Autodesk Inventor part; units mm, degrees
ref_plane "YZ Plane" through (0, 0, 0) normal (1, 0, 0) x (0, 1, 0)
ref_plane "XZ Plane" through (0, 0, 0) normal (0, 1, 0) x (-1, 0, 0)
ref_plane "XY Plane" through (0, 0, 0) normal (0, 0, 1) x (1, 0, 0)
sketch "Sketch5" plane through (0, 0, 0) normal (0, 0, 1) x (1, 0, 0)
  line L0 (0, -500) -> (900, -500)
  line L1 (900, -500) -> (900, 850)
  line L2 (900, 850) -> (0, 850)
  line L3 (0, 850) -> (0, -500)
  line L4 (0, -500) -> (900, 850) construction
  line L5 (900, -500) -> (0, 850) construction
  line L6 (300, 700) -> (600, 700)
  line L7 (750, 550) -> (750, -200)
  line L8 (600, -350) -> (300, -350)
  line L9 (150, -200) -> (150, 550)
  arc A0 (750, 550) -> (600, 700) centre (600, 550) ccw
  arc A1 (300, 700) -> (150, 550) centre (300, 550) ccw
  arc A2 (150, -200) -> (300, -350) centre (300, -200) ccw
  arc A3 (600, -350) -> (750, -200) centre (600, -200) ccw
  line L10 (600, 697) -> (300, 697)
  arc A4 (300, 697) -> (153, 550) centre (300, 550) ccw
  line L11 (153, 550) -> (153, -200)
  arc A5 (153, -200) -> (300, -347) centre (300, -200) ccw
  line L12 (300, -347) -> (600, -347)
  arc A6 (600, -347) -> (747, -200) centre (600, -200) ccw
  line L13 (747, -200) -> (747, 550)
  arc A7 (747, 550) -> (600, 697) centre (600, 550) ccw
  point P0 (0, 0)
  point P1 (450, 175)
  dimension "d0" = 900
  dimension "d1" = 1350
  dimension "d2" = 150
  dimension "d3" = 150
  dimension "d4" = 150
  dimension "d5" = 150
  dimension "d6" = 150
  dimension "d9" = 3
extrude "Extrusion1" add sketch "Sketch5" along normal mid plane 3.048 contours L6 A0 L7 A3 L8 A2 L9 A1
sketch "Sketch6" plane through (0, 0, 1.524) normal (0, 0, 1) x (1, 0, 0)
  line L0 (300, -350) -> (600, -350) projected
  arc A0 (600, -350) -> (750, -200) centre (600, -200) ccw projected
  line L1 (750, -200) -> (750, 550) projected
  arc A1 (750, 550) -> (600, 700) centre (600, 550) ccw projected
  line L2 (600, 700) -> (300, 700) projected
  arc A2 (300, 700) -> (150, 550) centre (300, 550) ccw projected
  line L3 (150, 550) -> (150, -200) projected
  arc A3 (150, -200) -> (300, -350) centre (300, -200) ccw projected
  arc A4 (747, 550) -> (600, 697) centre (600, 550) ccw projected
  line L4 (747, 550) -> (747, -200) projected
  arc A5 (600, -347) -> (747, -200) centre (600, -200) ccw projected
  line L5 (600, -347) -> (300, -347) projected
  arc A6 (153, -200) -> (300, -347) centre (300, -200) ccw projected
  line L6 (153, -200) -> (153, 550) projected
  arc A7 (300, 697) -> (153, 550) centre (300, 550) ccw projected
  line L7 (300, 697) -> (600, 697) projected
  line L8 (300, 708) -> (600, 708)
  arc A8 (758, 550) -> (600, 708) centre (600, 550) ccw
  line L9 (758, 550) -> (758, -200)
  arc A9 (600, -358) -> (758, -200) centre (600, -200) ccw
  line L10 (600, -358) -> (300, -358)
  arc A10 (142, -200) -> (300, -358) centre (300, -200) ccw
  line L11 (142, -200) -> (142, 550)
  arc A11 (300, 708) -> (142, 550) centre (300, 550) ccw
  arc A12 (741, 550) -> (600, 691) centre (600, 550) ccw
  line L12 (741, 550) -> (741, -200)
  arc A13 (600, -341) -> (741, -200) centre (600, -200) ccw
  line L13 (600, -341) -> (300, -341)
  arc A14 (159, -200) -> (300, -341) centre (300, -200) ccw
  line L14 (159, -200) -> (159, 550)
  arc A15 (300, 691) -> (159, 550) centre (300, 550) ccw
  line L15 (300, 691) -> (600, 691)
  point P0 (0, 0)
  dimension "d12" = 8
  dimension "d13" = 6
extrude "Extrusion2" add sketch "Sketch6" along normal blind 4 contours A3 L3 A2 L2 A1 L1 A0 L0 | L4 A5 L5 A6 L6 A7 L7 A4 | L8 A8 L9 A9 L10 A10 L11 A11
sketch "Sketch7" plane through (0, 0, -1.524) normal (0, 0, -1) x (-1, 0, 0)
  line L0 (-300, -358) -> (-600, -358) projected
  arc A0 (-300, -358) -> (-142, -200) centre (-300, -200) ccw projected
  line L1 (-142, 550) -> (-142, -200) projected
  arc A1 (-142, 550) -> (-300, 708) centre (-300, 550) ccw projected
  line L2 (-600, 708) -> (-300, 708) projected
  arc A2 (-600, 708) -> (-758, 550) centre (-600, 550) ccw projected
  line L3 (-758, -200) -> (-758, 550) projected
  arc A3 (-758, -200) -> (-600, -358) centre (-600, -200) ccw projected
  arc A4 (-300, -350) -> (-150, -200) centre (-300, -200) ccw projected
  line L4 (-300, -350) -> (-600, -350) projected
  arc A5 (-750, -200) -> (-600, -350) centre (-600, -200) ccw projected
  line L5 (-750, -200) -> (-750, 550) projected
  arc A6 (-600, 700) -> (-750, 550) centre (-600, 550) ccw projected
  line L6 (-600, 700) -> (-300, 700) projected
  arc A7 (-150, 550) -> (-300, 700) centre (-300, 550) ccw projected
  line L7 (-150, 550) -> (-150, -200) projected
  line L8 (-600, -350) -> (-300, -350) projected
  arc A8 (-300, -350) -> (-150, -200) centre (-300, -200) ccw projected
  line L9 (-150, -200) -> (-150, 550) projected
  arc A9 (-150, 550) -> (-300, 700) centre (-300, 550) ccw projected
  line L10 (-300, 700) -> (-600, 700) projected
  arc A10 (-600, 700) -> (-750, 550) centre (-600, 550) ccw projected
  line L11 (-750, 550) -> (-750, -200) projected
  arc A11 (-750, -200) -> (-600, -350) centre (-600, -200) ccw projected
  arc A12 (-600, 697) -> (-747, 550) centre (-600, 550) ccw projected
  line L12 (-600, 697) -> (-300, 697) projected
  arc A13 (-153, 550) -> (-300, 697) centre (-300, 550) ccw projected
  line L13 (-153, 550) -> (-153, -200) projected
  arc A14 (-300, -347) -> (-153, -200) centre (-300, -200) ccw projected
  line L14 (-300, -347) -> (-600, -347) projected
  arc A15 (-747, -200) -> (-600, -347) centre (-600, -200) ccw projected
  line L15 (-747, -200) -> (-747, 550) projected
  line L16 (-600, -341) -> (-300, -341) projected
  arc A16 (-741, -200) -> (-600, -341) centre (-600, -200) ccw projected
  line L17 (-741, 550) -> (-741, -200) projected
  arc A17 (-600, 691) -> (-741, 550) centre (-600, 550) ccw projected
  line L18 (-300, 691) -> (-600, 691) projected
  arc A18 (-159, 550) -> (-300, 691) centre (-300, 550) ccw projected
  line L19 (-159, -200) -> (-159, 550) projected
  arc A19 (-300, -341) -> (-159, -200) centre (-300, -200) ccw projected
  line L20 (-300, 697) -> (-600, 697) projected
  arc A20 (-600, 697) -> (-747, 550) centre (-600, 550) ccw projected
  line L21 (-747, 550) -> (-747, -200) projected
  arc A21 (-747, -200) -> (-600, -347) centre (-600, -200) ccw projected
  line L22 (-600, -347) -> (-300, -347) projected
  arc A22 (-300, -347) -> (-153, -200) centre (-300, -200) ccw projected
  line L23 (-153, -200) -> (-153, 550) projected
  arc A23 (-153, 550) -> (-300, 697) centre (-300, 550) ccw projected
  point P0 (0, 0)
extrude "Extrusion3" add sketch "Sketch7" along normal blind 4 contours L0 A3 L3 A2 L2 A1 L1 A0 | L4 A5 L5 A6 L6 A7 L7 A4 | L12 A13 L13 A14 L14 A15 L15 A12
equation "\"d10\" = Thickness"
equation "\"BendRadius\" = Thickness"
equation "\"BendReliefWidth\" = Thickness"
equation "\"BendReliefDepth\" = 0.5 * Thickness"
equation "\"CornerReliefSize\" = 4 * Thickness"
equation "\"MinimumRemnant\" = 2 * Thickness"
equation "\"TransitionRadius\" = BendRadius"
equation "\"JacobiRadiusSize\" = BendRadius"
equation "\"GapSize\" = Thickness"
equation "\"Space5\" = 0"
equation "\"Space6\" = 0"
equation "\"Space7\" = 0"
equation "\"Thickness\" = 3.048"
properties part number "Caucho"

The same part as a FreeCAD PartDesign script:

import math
import FreeCAD as App
import Part
import Sketcher
Q = App.Units.Quantity

doc = App.newDocument("Part")
body = doc.addObject("PartDesign::Body", "Body")

sketch1 = doc.addObject("Sketcher::SketchObject", "Sketch")
body.addObject(sketch1)
sketch1.AttachmentSupport = (doc.XY_Plane, [""])
sketch1.MapMode = "FlatFace"
sketch1.addGeometry(Part.LineSegment(App.Vector(600, 700, 0), App.Vector(300, 700, 0)), False)
sketch1.addGeometry(Part.ArcOfCircle(Part.Circle(App.Vector(300, 550, 0), App.Vector(0, 0, 1), 150), math.radians(90), math.radians(180)), False)
sketch1.addGeometry(Part.LineSegment(App.Vector(150, 550, 0), App.Vector(150, -200, 0)), False)
sketch1.addGeometry(Part.ArcOfCircle(Part.Circle(App.Vector(300, -200, 0), App.Vector(0, 0, 1), 150), math.radians(180), math.radians(270)), False)
sketch1.addGeometry(Part.LineSegment(App.Vector(300, -350, 0), App.Vector(600, -350, 0)), False)
sketch1.addGeometry(Part.ArcOfCircle(Part.Circle(App.Vector(600, -200, 0), App.Vector(0, 0, 1), 150), math.radians(-90), math.radians(0)), False)
sketch1.addGeometry(Part.LineSegment(App.Vector(750, -200, 0), App.Vector(750, 550, 0)), False)
sketch1.addGeometry(Part.ArcOfCircle(Part.Circle(App.Vector(600, 550, 0), App.Vector(0, 0, 1), 150), math.radians(0), math.radians(90)), False)
sketch1.addGeometry(Part.LineSegment(App.Vector(300, 697, 0), App.Vector(600, 697, 0)), False)
sketch1.addGeometry(Part.ArcOfCircle(Part.Circle(App.Vector(600, 550, 0), App.Vector(0, 0, 1), 147), math.radians(0), math.radians(90)), False)
sketch1.addGeometry(Part.LineSegment(App.Vector(747, 550, 0), App.Vector(747, -200, 0)), False)
sketch1.addGeometry(Part.ArcOfCircle(Part.Circle(App.Vector(600, -200, 0), App.Vector(0, 0, 1), 147), math.radians(-90), math.radians(0)), False)
sketch1.addGeometry(Part.LineSegment(App.Vector(600, -347, 0), App.Vector(300, -347, 0)), False)
sketch1.addGeometry(Part.ArcOfCircle(Part.Circle(App.Vector(300, -200, 0), App.Vector(0, 0, 1), 147), math.radians(180), math.radians(270)), False)
sketch1.addGeometry(Part.LineSegment(App.Vector(153, -200, 0), App.Vector(153, 550, 0)), False)
sketch1.addGeometry(Part.ArcOfCircle(Part.Circle(App.Vector(300, 550, 0), App.Vector(0, 0, 1), 147), math.radians(90), math.radians(180)), False)
sketch1.addConstraint(Sketcher.Constraint("Tangent", 0, 2, 1, 1))
sketch1.addConstraint(Sketcher.Constraint("Tangent", 1, 2, 2, 1))
sketch1.addConstraint(Sketcher.Constraint("Tangent", 2, 2, 3, 1))
sketch1.addConstraint(Sketcher.Constraint("Tangent", 3, 2, 4, 1))
sketch1.addConstraint(Sketcher.Constraint("Tangent", 4, 2, 5, 1))
sketch1.addConstraint(Sketcher.Constraint("Tangent", 5, 2, 6, 1))
sketch1.addConstraint(Sketcher.Constraint("Tangent", 6, 2, 7, 1))
sketch1.addConstraint(Sketcher.Constraint("Tangent", 7, 2, 0, 1))
sketch1.addConstraint(Sketcher.Constraint("Tangent", 8, 2, 9, 2))
sketch1.addConstraint(Sketcher.Constraint("Tangent", 9, 1, 10, 1))
sketch1.addConstraint(Sketcher.Constraint("Tangent", 10, 2, 11, 2))
sketch1.addConstraint(Sketcher.Constraint("Tangent", 11, 1, 12, 1))
sketch1.addConstraint(Sketcher.Constraint("Tangent", 12, 2, 13, 2))
sketch1.addConstraint(Sketcher.Constraint("Tangent", 13, 1, 14, 1))
sketch1.addConstraint(Sketcher.Constraint("Tangent", 14, 2, 15, 2))
sketch1.addConstraint(Sketcher.Constraint("Tangent", 15, 1, 8, 1))
sketch1.addConstraint(Sketcher.Constraint("Horizontal", 0))
sketch1.addConstraint(Sketcher.Constraint("Vertical", 2))
sketch1.addConstraint(Sketcher.Constraint("Horizontal", 4))
sketch1.addConstraint(Sketcher.Constraint("Vertical", 6))
sketch1.addConstraint(Sketcher.Constraint("Horizontal", 8))
sketch1.addConstraint(Sketcher.Constraint("Vertical", 10))
sketch1.addConstraint(Sketcher.Constraint("Horizontal", 12))
sketch1.addConstraint(Sketcher.Constraint("Vertical", 14))
sketch1.addConstraint(Sketcher.Constraint("Coincident", 9, 3, 7, 3))
sketch1.addConstraint(Sketcher.Constraint("Coincident", 11, 3, 5, 3))
sketch1.addConstraint(Sketcher.Constraint("Coincident", 13, 3, 3, 3))
sketch1.addConstraint(Sketcher.Constraint("Equal", 1, 3))
sketch1.addConstraint(Sketcher.Constraint("Equal", 3, 5))
sketch1.addConstraint(Sketcher.Constraint("Equal", 5, 7))
sketch1.addConstraint(Sketcher.Constraint("Equal", 13, 15))
sketch1.addConstraint(Sketcher.Constraint("Radius", 1, Q("150 mm")))
sketch1.addConstraint(Sketcher.Constraint("DistanceX", -1, 1, 1, 2, Q("150 mm")))
sketch1.addConstraint(Sketcher.Constraint("Radius", 9, Q("147 mm")))
sketch1.addConstraint(Sketcher.Constraint("DistanceY", 3, 3, 0, 2, Q("900 mm")))
sketch1.addConstraint(Sketcher.Constraint("DistanceX", 0, 2, 0, 1, Q("300 mm")))
sketch1.addConstraint(Sketcher.Constraint("DistanceY", -1, 1, 1, 3, Q("550 mm")))
pad1 = doc.addObject("PartDesign::Pad", "Pad")
body.addObject(pad1)
pad1.Profile = sketch1
pad1.Length = 3.048
pad1.Midplane = True

sketch2 = doc.addObject("Sketcher::SketchObject", "Sketch001")
body.addObject(sketch2)
sketch2.AttachmentSupport = (doc.XY_Plane, [""])
sketch2.MapMode = "FlatFace"
sketch2.AttachmentOffset = App.Placement(App.Vector(0, 0, 1.524), App.Rotation())
sketch2.addGeometry(Part.LineSegment(App.Vector(600, 708, 0), App.Vector(300, 708, 0)), False)
sketch2.addGeometry(Part.ArcOfCircle(Part.Circle(App.Vector(300, 550, 0), App.Vector(0, 0, 1), 158), math.radians(90), math.radians(180)), False)
sketch2.addGeometry(Part.LineSegment(App.Vector(142, 550, 0), App.Vector(142, -200, 0)), False)
sketch2.addGeometry(Part.ArcOfCircle(Part.Circle(App.Vector(300, -200, 0), App.Vector(0, 0, 1), 158), math.radians(180), math.radians(270)), False)
sketch2.addGeometry(Part.LineSegment(App.Vector(300, -358, 0), App.Vector(600, -358, 0)), False)
sketch2.addGeometry(Part.ArcOfCircle(Part.Circle(App.Vector(600, -200, 0), App.Vector(0, 0, 1), 158), math.radians(-90), math.radians(0)), False)
sketch2.addGeometry(Part.LineSegment(App.Vector(758, -200, 0), App.Vector(758, 550, 0)), False)
sketch2.addGeometry(Part.ArcOfCircle(Part.Circle(App.Vector(600, 550, 0), App.Vector(0, 0, 1), 158), math.radians(0), math.radians(90)), False)
sketch2.addGeometry(Part.ArcOfCircle(Part.Circle(App.Vector(600, 550, 0), App.Vector(0, 0, 1), 141), math.radians(0), math.radians(90)), False)
sketch2.addGeometry(Part.LineSegment(App.Vector(741, 550, 0), App.Vector(741, -200, 0)), False)
sketch2.addGeometry(Part.ArcOfCircle(Part.Circle(App.Vector(600, -200, 0), App.Vector(0, 0, 1), 141), math.radians(-90), math.radians(0)), False)
sketch2.addGeometry(Part.LineSegment(App.Vector(600, -341, 0), App.Vector(300, -341, 0)), False)
sketch2.addGeometry(Part.ArcOfCircle(Part.Circle(App.Vector(300, -200, 0), App.Vector(0, 0, 1), 141), math.radians(180), math.radians(270)), False)
sketch2.addGeometry(Part.LineSegment(App.Vector(159, -200, 0), App.Vector(159, 550, 0)), False)
sketch2.addGeometry(Part.ArcOfCircle(Part.Circle(App.Vector(300, 550, 0), App.Vector(0, 0, 1), 141), math.radians(90), math.radians(180)), False)
sketch2.addGeometry(Part.LineSegment(App.Vector(300, 691, 0), App.Vector(600, 691, 0)), False)
sketch2.addConstraint(Sketcher.Constraint("Tangent", 0, 2, 1, 1))
sketch2.addConstraint(Sketcher.Constraint("Tangent", 1, 2, 2, 1))
sketch2.addConstraint(Sketcher.Constraint("Tangent", 2, 2, 3, 1))
sketch2.addConstraint(Sketcher.Constraint("Tangent", 3, 2, 4, 1))
sketch2.addConstraint(Sketcher.Constraint("Tangent", 4, 2, 5, 1))
sketch2.addConstraint(Sketcher.Constraint("Tangent", 5, 2, 6, 1))
sketch2.addConstraint(Sketcher.Constraint("Tangent", 6, 2, 7, 1))
sketch2.addConstraint(Sketcher.Constraint("Tangent", 7, 2, 0, 1))
sketch2.addConstraint(Sketcher.Constraint("Tangent", 8, 1, 9, 1))
sketch2.addConstraint(Sketcher.Constraint("Tangent", 9, 2, 10, 2))
sketch2.addConstraint(Sketcher.Constraint("Tangent", 10, 1, 11, 1))
sketch2.addConstraint(Sketcher.Constraint("Tangent", 11, 2, 12, 2))
sketch2.addConstraint(Sketcher.Constraint("Tangent", 12, 1, 13, 1))
sketch2.addConstraint(Sketcher.Constraint("Tangent", 13, 2, 14, 2))
sketch2.addConstraint(Sketcher.Constraint("Tangent", 14, 1, 15, 1))
sketch2.addConstraint(Sketcher.Constraint("Tangent", 15, 2, 8, 2))
sketch2.addConstraint(Sketcher.Constraint("Horizontal", 0))
sketch2.addConstraint(Sketcher.Constraint("Vertical", 2))
sketch2.addConstraint(Sketcher.Constraint("Horizontal", 4))
sketch2.addConstraint(Sketcher.Constraint("Vertical", 6))
sketch2.addConstraint(Sketcher.Constraint("Vertical", 9))
sketch2.addConstraint(Sketcher.Constraint("Horizontal", 11))
sketch2.addConstraint(Sketcher.Constraint("Vertical", 13))
sketch2.addConstraint(Sketcher.Constraint("Horizontal", 15))
sketch2.addConstraint(Sketcher.Constraint("Coincident", 8, 3, 7, 3))
sketch2.addConstraint(Sketcher.Constraint("Coincident", 10, 3, 5, 3))
sketch2.addConstraint(Sketcher.Constraint("Coincident", 12, 3, 3, 3))
sketch2.addConstraint(Sketcher.Constraint("Equal", 1, 3))
sketch2.addConstraint(Sketcher.Constraint("Equal", 3, 5))
sketch2.addConstraint(Sketcher.Constraint("Equal", 5, 7))
sketch2.addConstraint(Sketcher.Constraint("Equal", 12, 14))
sketch2.addConstraint(Sketcher.Constraint("Radius", 1, Q("158 mm")))
sketch2.addConstraint(Sketcher.Constraint("Radius", 8, Q("141 mm")))
sketch2.addConstraint(Sketcher.Constraint("DistanceX", 0, 2, 0, 1, Q("300 mm")))
sketch2.addConstraint(Sketcher.Constraint("DistanceY", 2, 2, 2, 1, Q("750 mm")))
sketch2.addConstraint(Sketcher.Constraint("DistanceX", -1, 1, 1, 3, Q("300 mm")))
sketch2.addConstraint(Sketcher.Constraint("DistanceY", -1, 1, 1, 3, Q("550 mm")))
pad2 = doc.addObject("PartDesign::Pad", "Pad001")
body.addObject(pad2)
pad2.Profile = sketch2
pad2.Length = 4

sketch3 = doc.addObject("Sketcher::SketchObject", "Sketch002")
body.addObject(sketch3)
sketch3.AttachmentSupport = (doc.XY_Plane, [""])
sketch3.MapMode = "FlatFace"
sketch3.AttachmentOffset = App.Placement(App.Vector(0, 0, -1.524), App.Rotation())
sketch3.addGeometry(Part.LineSegment(App.Vector(600, -358, 0), App.Vector(300, -358, 0)), False)
sketch3.addGeometry(Part.ArcOfCircle(Part.Circle(App.Vector(300, -200, 0), App.Vector(0, 0, 1), 158), math.radians(180), math.radians(270)), False)
sketch3.addGeometry(Part.LineSegment(App.Vector(142, -200, 0), App.Vector(142, 550, 0)), False)
sketch3.addGeometry(Part.ArcOfCircle(Part.Circle(App.Vector(300, 550, 0), App.Vector(0, 0, 1), 158), math.radians(90), math.radians(180)), False)
sketch3.addGeometry(Part.LineSegment(App.Vector(300, 708, 0), App.Vector(600, 708, 0)), False)
sketch3.addGeometry(Part.ArcOfCircle(Part.Circle(App.Vector(600, 550, 0), App.Vector(0, 0, 1), 158), math.radians(0), math.radians(90)), False)
sketch3.addGeometry(Part.LineSegment(App.Vector(758, 550, 0), App.Vector(758, -200, 0)), False)
sketch3.addGeometry(Part.ArcOfCircle(Part.Circle(App.Vector(600, -200, 0), App.Vector(0, 0, 1), 158), math.radians(-90), math.radians(0)), False)
sketch3.addGeometry(Part.LineSegment(App.Vector(300, -341, 0), App.Vector(600, -341, 0)), False)
sketch3.addGeometry(Part.ArcOfCircle(Part.Circle(App.Vector(600, -200, 0), App.Vector(0, 0, 1), 141), math.radians(-90), math.radians(0)), False)
sketch3.addGeometry(Part.LineSegment(App.Vector(741, -200, 0), App.Vector(741, 550, 0)), False)
sketch3.addGeometry(Part.ArcOfCircle(Part.Circle(App.Vector(600, 550, 0), App.Vector(0, 0, 1), 141), math.radians(0), math.radians(90)), False)
sketch3.addGeometry(Part.LineSegment(App.Vector(600, 691, 0), App.Vector(300, 691, 0)), False)
sketch3.addGeometry(Part.ArcOfCircle(Part.Circle(App.Vector(300, 550, 0), App.Vector(0, 0, 1), 141), math.radians(90), math.radians(180)), False)
sketch3.addGeometry(Part.LineSegment(App.Vector(159, 550, 0), App.Vector(159, -200, 0)), False)
sketch3.addGeometry(Part.ArcOfCircle(Part.Circle(App.Vector(300, -200, 0), App.Vector(0, 0, 1), 141), math.radians(180), math.radians(270)), False)
sketch3.addConstraint(Sketcher.Constraint("Tangent", 0, 2, 1, 2))
sketch3.addConstraint(Sketcher.Constraint("Tangent", 1, 1, 2, 1))
sketch3.addConstraint(Sketcher.Constraint("Tangent", 2, 2, 3, 2))
sketch3.addConstraint(Sketcher.Constraint("Tangent", 3, 1, 4, 1))
sketch3.addConstraint(Sketcher.Constraint("Tangent", 4, 2, 5, 2))
sketch3.addConstraint(Sketcher.Constraint("Tangent", 5, 1, 6, 1))
sketch3.addConstraint(Sketcher.Constraint("Tangent", 6, 2, 7, 2))
sketch3.addConstraint(Sketcher.Constraint("Tangent", 7, 1, 0, 1))
sketch3.addConstraint(Sketcher.Constraint("Tangent", 8, 2, 9, 1))
sketch3.addConstraint(Sketcher.Constraint("Tangent", 9, 2, 10, 1))
sketch3.addConstraint(Sketcher.Constraint("Tangent", 10, 2, 11, 1))
sketch3.addConstraint(Sketcher.Constraint("Tangent", 11, 2, 12, 1))
sketch3.addConstraint(Sketcher.Constraint("Tangent", 12, 2, 13, 1))
sketch3.addConstraint(Sketcher.Constraint("Tangent", 13, 2, 14, 1))
sketch3.addConstraint(Sketcher.Constraint("Tangent", 14, 2, 15, 1))
sketch3.addConstraint(Sketcher.Constraint("Tangent", 15, 2, 8, 1))
sketch3.addConstraint(Sketcher.Constraint("Horizontal", 0))
sketch3.addConstraint(Sketcher.Constraint("Vertical", 2))
sketch3.addConstraint(Sketcher.Constraint("Horizontal", 4))
sketch3.addConstraint(Sketcher.Constraint("Vertical", 6))
sketch3.addConstraint(Sketcher.Constraint("Horizontal", 8))
sketch3.addConstraint(Sketcher.Constraint("Vertical", 10))
sketch3.addConstraint(Sketcher.Constraint("Horizontal", 12))
sketch3.addConstraint(Sketcher.Constraint("Vertical", 14))
sketch3.addConstraint(Sketcher.Constraint("Coincident", 9, 3, 7, 3))
sketch3.addConstraint(Sketcher.Constraint("Coincident", 11, 3, 5, 3))
sketch3.addConstraint(Sketcher.Constraint("Coincident", 13, 3, 3, 3))
sketch3.addConstraint(Sketcher.Constraint("Equal", 1, 3))
sketch3.addConstraint(Sketcher.Constraint("Equal", 3, 5))
sketch3.addConstraint(Sketcher.Constraint("Equal", 5, 7))
sketch3.addConstraint(Sketcher.Constraint("Equal", 13, 15))
sketch3.addConstraint(Sketcher.Constraint("Radius", 1, Q("158 mm")))
sketch3.addConstraint(Sketcher.Constraint("Radius", 9, Q("141 mm")))
sketch3.addConstraint(Sketcher.Constraint("DistanceX", 0, 2, 0, 1, Q("300 mm")))
sketch3.addConstraint(Sketcher.Constraint("DistanceY", 2, 1, 2, 2, Q("750 mm")))
sketch3.addConstraint(Sketcher.Constraint("DistanceX", -1, 1, 1, 3, Q("300 mm")))
sketch3.addConstraint(Sketcher.Constraint("DistanceY", 1, 3, -1, 1, Q("200 mm")))
pad3 = doc.addObject("PartDesign::Pad", "Pad002")
body.addObject(pad3)
pad3.Profile = sketch3
pad3.Length = 4
pad3.Reversed = True

doc.recompute()
